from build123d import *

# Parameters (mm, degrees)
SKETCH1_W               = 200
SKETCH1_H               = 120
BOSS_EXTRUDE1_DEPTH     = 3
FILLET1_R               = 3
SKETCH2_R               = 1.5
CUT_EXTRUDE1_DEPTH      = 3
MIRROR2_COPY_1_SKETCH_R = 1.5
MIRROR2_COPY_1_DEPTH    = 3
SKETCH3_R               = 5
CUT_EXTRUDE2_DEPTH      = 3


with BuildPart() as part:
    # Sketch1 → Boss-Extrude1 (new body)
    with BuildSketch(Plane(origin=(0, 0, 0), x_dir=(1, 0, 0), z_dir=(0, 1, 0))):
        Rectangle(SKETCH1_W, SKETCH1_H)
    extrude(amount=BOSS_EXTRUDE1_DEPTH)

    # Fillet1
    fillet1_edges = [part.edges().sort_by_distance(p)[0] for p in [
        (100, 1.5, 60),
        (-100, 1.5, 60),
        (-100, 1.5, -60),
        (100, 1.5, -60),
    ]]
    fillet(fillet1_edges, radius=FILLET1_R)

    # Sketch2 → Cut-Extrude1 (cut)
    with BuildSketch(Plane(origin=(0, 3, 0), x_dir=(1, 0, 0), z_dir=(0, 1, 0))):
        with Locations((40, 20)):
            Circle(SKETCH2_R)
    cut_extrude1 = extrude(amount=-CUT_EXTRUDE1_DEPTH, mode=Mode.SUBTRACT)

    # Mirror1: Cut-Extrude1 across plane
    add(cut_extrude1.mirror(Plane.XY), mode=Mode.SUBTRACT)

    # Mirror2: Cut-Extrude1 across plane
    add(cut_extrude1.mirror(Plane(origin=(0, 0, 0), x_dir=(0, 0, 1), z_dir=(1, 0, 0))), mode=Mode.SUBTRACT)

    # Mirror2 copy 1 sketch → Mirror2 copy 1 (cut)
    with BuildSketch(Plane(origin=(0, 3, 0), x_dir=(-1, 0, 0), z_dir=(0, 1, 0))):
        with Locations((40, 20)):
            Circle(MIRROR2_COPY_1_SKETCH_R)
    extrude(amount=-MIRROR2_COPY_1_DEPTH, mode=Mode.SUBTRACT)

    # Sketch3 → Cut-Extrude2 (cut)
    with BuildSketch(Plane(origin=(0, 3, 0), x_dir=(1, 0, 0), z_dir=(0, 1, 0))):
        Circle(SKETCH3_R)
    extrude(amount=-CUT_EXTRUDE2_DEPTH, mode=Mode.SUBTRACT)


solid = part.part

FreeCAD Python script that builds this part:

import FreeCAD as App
import Part
import Sketcher
from FreeCAD import Vector


def edges_at(feature, points):
    """Names of the edges that pass closest to the given points."""
    edges = feature.Shape.Edges
    near = lambda p: min(range(len(edges)), key=lambda i: edges[i].distToShape(Part.Vertex(*p))[0])
    return sorted({f"Edge{near(p) + 1}" for p in points})


def add_polygon(sketch, points):
    """Adds a closed chain of lines whose ends are joined by coincident constraints."""
    first, n = sketch.GeometryCount, len(points)
    for a, b in zip(points, points[1:] + points[:1]):
        sketch.addGeometry(Part.LineSegment(App.Vector(*a, 0), App.Vector(*b, 0)), False)
    for i in range(n):
        sketch.addConstraint(Sketcher.Constraint("Coincident", first + i, 2, first + (i + 1) % n, 1))

doc = App.newDocument("Part")
params = doc.addObject("Spreadsheet::Sheet", "Params")
for row, (alias, value) in enumerate([
    ("sketch1_width", "200 mm"),
    ("sketch1_height", "120 mm"),
    ("pad1_length", "3 mm"),
    ("fillet_radius", "3 mm"),
    ("sketch2_diameter", "3 mm"),
    ("pocket1_length", "3 mm"),
    ("sketch3_diameter", "3 mm"),
    ("pocket2_length", "3 mm"),
    ("sketch4_diameter", "10 mm"),
    ("pocket3_length", "3 mm"),
], start=1):
    params.set(f"A{row}", alias)
    params.set(f"B{row}", "=" + value)
    params.setAlias(f"B{row}", alias)

body = doc.addObject("PartDesign::Body", "Body")

# Sketch on XZ plane
sketch1 = body.newObject("Sketcher::SketchObject", "Sketch")
sketch1.AttachmentSupport = (doc.getObject("XZ_Plane"), [""])
sketch1.MapMode = "FlatFace"
add_polygon(sketch1, [(-100, -60), (-100, 60), (100, 60), (100, -60)])  # lines 0-3
sketch1.addConstraint([
    Sketcher.Constraint("Vertical", 0),
    Sketcher.Constraint("Horizontal", 1),
    Sketcher.Constraint("Vertical", 2),
    Sketcher.Constraint("Horizontal", 3),
    Sketcher.Constraint("Symmetric", 0, 2, 2, 2, -1, 1),
    Sketcher.Constraint("DistanceX", 1, 1, 1, 2, 200.0),
    Sketcher.Constraint("DistanceY", 0, 1, 0, 2, 120.0),
])
sketch1.setExpression("Constraints[9]", "Params.sketch1_width")
sketch1.setExpression("Constraints[10]", "Params.sketch1_height")
pad1 = body.newObject("PartDesign::Pad", "Pad")
pad1.Profile = sketch1
pad1.setExpression("Length", "Params.pad1_length")
pad1.Reversed = True
doc.recompute()

fillet = body.newObject("PartDesign::Fillet", "Fillet")
fillet.Base = (pad1, edges_at(pad1, [
    (100, 1.5, 60),
    (-100, 1.5, 60),
    (-100, 1.5, -60),
    (100, 1.5, -60),
]))
fillet.setExpression("Radius", "Params.fillet_radius")

# Sketch on XZ plane
sketch2 = body.newObject("Sketcher::SketchObject", "Sketch001")
sketch2.AttachmentSupport = (doc.getObject("XZ_Plane"), [""])
sketch2.MapMode = "FlatFace"
sketch2.AttachmentOffset = App.Placement(Vector(0, 0, -3), App.Rotation())
sketch2.addGeometry(Part.Circle(Vector(40, -20, 0), Vector(0, 0, 1), 1.5), False)
sketch2.addConstraint([
    Sketcher.Constraint("Diameter", 0, 3.0),
    Sketcher.Constraint("DistanceX", -1, 1, 0, 3, 40.0),
    Sketcher.Constraint("DistanceY", 0, 3, -1, 1, 20.0),
])
sketch2.setExpression("Constraints[0]", "Params.sketch2_diameter")
pocket1 = body.newObject("PartDesign::Pocket", "Pocket")
pocket1.Profile = sketch2
pocket1.setExpression("Length", "Params.pocket1_length")
pocket1.Reversed = True
doc.recompute()

mirrored = body.newObject("PartDesign::Mirrored", "Mirrored")
mirrored.Originals = [pocket1]
mirrored.MirrorPlane = (doc.getObject("XY_Plane"), [""])
body.Tip = mirrored
doc.recompute()

mirrored2 = body.newObject("PartDesign::Mirrored", "Mirrored001")
mirrored2.Originals = [pocket1]
mirrored2.MirrorPlane = (doc.getObject("YZ_Plane"), [""])
body.Tip = mirrored2

# Sketch on XZ plane
sketch3 = body.newObject("Sketcher::SketchObject", "Sketch002")
sketch3.AttachmentSupport = (doc.getObject("XZ_Plane"), [""])
sketch3.MapMode = "FlatFace"
sketch3.AttachmentOffset = App.Placement(Vector(0, 0, -3), App.Rotation())
sketch3.addGeometry(Part.Circle(Vector(-40, 20, 0), Vector(0, 0, 1), 1.5), False)
sketch3.addConstraint([
    Sketcher.Constraint("Diameter", 0, 3.0),
    Sketcher.Constraint("DistanceX", 0, 3, -1, 1, 40.0),
    Sketcher.Constraint("DistanceY", -1, 1, 0, 3, 20.0),
])
sketch3.setExpression("Constraints[0]", "Params.sketch3_diameter")
pocket2 = body.newObject("PartDesign::Pocket", "Pocket001")
pocket2.Profile = sketch3
pocket2.setExpression("Length", "Params.pocket2_length")
pocket2.Reversed = True

# Sketch on XZ plane
sketch4 = body.newObject("Sketcher::SketchObject", "Sketch003")
sketch4.AttachmentSupport = (doc.getObject("XZ_Plane"), [""])
sketch4.MapMode = "FlatFace"
sketch4.AttachmentOffset = App.Placement(Vector(0, 0, -3), App.Rotation())
sketch4.addGeometry(Part.Circle(Vector(0, 0, 0), Vector(0, 0, 1), 5), False)
sketch4.addConstraint([
    Sketcher.Constraint("Coincident", 0, 3, -1, 1),
    Sketcher.Constraint("Diameter", 0, 10.0),
])
sketch4.setExpression("Constraints[1]", "Params.sketch4_diameter")
pocket3 = body.newObject("PartDesign::Pocket", "Pocket002")
pocket3.Profile = sketch4
pocket3.setExpression("Length", "Params.pocket3_length")
pocket3.Reversed = True

doc.recompute()
